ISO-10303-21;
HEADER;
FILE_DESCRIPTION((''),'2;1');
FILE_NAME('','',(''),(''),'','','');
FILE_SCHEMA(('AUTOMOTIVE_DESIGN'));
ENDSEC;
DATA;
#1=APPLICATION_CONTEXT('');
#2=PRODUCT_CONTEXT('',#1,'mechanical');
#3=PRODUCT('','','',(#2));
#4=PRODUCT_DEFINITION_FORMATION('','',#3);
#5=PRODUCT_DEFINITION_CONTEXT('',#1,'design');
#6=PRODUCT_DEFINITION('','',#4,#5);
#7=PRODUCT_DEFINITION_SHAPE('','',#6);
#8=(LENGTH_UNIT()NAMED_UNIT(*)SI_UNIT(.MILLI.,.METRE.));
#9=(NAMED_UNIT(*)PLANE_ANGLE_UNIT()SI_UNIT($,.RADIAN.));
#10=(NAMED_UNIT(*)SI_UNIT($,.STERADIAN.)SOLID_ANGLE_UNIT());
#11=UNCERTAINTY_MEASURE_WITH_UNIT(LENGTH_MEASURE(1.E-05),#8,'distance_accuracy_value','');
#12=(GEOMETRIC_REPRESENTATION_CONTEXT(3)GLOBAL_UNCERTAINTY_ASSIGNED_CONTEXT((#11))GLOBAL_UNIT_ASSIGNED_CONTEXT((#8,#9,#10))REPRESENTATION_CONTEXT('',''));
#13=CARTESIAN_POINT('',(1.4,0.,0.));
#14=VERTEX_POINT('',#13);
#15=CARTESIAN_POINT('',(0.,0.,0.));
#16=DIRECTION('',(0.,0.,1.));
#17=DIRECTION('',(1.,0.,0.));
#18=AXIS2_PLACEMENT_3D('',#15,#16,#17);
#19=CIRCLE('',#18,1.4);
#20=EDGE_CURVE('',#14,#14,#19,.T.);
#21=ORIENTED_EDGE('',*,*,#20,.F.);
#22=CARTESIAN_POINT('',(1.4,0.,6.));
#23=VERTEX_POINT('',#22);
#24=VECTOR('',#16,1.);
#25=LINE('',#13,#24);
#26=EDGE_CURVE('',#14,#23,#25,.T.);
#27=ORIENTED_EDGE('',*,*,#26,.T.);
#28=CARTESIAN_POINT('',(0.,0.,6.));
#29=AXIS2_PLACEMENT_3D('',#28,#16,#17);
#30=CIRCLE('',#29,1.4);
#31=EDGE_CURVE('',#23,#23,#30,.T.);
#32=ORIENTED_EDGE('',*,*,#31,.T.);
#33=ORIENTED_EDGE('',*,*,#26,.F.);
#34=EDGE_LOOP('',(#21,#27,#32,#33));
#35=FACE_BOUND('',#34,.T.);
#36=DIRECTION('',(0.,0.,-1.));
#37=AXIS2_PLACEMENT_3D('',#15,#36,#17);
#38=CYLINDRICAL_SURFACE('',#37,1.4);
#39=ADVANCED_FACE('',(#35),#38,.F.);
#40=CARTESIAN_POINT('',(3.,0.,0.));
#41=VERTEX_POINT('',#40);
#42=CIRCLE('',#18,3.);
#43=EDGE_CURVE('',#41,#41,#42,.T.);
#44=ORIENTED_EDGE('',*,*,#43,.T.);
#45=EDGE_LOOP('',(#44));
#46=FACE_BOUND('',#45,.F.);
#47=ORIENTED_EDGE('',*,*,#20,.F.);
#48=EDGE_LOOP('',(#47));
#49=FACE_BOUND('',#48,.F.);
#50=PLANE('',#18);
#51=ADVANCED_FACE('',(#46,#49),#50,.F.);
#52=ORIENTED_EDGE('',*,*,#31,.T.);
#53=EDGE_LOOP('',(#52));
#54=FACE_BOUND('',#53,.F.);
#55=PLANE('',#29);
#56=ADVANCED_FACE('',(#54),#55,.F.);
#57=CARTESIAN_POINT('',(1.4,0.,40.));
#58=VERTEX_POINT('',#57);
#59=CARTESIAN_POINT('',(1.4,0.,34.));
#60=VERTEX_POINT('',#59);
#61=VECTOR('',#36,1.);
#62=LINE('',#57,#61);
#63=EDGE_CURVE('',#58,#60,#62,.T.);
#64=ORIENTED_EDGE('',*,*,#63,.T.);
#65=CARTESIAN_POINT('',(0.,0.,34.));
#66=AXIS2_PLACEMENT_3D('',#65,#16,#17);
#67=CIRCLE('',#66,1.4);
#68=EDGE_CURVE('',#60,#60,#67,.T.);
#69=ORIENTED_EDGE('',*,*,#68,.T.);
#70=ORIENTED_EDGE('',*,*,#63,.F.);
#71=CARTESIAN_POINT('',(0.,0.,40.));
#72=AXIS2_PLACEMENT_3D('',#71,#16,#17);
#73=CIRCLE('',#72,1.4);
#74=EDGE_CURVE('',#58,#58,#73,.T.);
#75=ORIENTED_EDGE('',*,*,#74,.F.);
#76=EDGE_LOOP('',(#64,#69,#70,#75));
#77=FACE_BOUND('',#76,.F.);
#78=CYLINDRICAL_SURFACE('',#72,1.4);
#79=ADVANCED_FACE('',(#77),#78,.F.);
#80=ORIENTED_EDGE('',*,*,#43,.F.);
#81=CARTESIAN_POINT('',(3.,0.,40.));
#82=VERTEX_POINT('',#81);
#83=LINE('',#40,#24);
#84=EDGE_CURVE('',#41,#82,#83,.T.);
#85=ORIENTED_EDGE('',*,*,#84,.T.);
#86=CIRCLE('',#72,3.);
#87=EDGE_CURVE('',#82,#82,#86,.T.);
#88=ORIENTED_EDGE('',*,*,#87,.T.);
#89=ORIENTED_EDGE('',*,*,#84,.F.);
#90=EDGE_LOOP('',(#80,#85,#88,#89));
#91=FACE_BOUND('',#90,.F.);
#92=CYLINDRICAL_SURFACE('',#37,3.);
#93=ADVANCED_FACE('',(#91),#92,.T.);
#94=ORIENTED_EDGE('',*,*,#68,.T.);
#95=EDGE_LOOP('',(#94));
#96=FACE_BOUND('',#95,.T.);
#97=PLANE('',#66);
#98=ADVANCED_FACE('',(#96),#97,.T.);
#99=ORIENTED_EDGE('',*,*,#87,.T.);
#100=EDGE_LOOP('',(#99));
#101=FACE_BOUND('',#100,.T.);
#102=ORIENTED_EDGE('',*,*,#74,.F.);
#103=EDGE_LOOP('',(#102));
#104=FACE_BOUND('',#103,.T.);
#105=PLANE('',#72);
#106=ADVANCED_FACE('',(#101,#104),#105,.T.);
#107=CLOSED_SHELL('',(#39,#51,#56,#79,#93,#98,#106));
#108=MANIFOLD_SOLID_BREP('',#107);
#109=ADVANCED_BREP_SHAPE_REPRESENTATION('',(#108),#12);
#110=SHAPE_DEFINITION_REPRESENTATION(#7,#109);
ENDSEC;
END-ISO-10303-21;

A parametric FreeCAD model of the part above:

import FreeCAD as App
import Part
import Sketcher
from FreeCAD import Vector
Q = App.Units.Quantity

doc = App.newDocument("Part")
body = doc.addObject("PartDesign::Body", "Body")

# Sketch on XY plane
sketch1 = body.newObject("Sketcher::SketchObject", "Sketch")
sketch1.AttachmentSupport = (doc.getObject("XY_Plane"), [""])
sketch1.MapMode = "FlatFace"
sketch1.addGeometry(Part.Circle(Vector(0, 0, 0), Vector(0, 0, 1), 3), False)
sketch1.addConstraint(Sketcher.Constraint("Coincident", 0, 3, -1, 1))
sketch1.addConstraint(Sketcher.Constraint("Diameter", 0, Q("6 mm")))
pad1 = body.newObject("PartDesign::Pad", "Pad")
pad1.Profile = sketch1
pad1.Length = 40

# Sketch on XY plane
sketch2 = body.newObject("Sketcher::SketchObject", "Sketch001")
sketch2.AttachmentSupport = (doc.getObject("XY_Plane"), [""])
sketch2.MapMode = "FlatFace"
sketch2.AttachmentOffset = App.Placement(Vector(0, 0, 40), App.Rotation())
sketch2.addGeometry(Part.Circle(Vector(0, 0, 0), Vector(0, 0, 1), 1.4), False)
sketch2.addConstraint(Sketcher.Constraint("Coincident", 0, 3, -1, 1))
sketch2.addConstraint(Sketcher.Constraint("Diameter", 0, Q("2.8 mm")))
pocket1 = body.newObject("PartDesign::Pocket", "Pocket")
pocket1.Profile = sketch2
pocket1.Length = 6

# Sketch on XY plane
sketch3 = body.newObject("Sketcher::SketchObject", "Sketch002")
sketch3.AttachmentSupport = (doc.getObject("XY_Plane"), [""])
sketch3.MapMode = "FlatFace"
sketch3.addGeometry(Part.Circle(Vector(0, 0, 0), Vector(0, 0, 1), 1.4), False)
sketch3.addConstraint(Sketcher.Constraint("Coincident", 0, 3, -1, 1))
sketch3.addConstraint(Sketcher.Constraint("Diameter", 0, Q("2.8 mm")))
pocket2 = body.newObject("PartDesign::Pocket", "Pocket001")
pocket2.Profile = sketch3
pocket2.Length = 6
pocket2.Reversed = True

doc.recompute()
